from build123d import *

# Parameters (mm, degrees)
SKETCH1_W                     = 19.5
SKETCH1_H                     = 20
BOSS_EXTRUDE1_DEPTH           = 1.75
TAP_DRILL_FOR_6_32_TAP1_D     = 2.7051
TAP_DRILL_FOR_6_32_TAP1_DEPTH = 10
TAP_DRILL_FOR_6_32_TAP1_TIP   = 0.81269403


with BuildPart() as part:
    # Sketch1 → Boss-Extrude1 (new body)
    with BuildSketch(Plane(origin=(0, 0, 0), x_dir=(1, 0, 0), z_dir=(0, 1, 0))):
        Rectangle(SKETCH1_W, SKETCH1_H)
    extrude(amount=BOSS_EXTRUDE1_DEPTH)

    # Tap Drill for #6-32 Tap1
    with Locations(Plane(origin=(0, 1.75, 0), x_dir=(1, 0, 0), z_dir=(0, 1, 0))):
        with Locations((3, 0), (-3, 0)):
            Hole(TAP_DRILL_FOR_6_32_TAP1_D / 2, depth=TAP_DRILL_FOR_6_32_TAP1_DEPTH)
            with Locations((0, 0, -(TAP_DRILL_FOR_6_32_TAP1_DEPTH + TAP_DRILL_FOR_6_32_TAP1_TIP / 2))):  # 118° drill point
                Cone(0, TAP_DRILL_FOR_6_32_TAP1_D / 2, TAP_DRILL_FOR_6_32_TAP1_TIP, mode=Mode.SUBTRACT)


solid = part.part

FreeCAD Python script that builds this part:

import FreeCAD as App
import Part
import Sketcher
Q = App.Units.Quantity

doc = App.newDocument("Part")
body = doc.addObject("PartDesign::Body", "Body")

sketch1 = doc.addObject("Sketcher::SketchObject", "Sketch")
body.addObject(sketch1)
sketch1.AttachmentSupport = (doc.XZ_Plane, [""])
sketch1.MapMode = "FlatFace"
sketch1.addGeometry([
    Part.LineSegment(App.Vector(-10, -10, 0), App.Vector(-10, 10, 0)),
    Part.LineSegment(App.Vector(-10, 10, 0), App.Vector(10, 10, 0)),
    Part.LineSegment(App.Vector(10, 10, 0), App.Vector(10, -10, 0)),
    Part.LineSegment(App.Vector(10, -10, 0), App.Vector(-10, -10, 0)),
], False)
sketch1.addConstraint([
    Sketcher.Constraint("Coincident", 0, 2, 1, 1),
    Sketcher.Constraint("Coincident", 1, 2, 2, 1),
    Sketcher.Constraint("Coincident", 2, 2, 3, 1),
    Sketcher.Constraint("Coincident", 3, 2, 0, 1),
    Sketcher.Constraint("Vertical", 0),
    Sketcher.Constraint("Horizontal", 1),
    Sketcher.Constraint("Vertical", 2),
    Sketcher.Constraint("Horizontal", 3),
    Sketcher.Constraint("Symmetric", 0, 2, 2, 2, -1, 1),
    Sketcher.Constraint("DistanceY", 0, 1, 0, 2, Q("20 mm")),
    Sketcher.Constraint("DistanceX", 1, 1, 1, 2, Q("19.5 mm")),
])
pad1 = doc.addObject("PartDesign::Pad", "Pad")
body.addObject(pad1)
pad1.Profile = sketch1
pad1.Length = 1.75
pad1.Reversed = True

sketch2 = doc.addObject("Sketcher::SketchObject", "Sketch001")
body.addObject(sketch2)
sketch2.AttachmentSupport = (doc.XZ_Plane, [""])
sketch2.MapMode = "FlatFace"
sketch2.AttachmentOffset = App.Placement(App.Vector(0, 0, -1.75), App.Rotation())
sketch2.addGeometry([
    Part.Circle(App.Vector(3, 0, 0), App.Vector(0, 0, 1), 1.4),
    Part.Circle(App.Vector(-3, 0, 0), App.Vector(0, 0, 1), 1.4),
], False)
sketch2.addConstraint([
    Sketcher.Constraint("Equal", 0, 1),
    Sketcher.Constraint("Symmetric", 0, 3, 1, 3, -1, 1),
    Sketcher.Constraint("PointOnObject", 0, 3, -1),
    Sketcher.Constraint("DistanceX", -1, 1, 0, 3, Q("3 mm")),
    Sketcher.Constraint("Diameter", 0, Q("2.7051 mm")),
])
doc.recompute()
hole = doc.addObject("PartDesign::Hole", "Hole")
body.addObject(hole)
hole.Profile = sketch2
hole.ThreadType = "None"
hole.Diameter = 2.7051
hole.DepthType = "Dimension"
hole.Depth = 10
hole.DrillPoint = "Angled"
hole.DrillPointAngle = 118
hole.Reversed = True

doc.recompute()
